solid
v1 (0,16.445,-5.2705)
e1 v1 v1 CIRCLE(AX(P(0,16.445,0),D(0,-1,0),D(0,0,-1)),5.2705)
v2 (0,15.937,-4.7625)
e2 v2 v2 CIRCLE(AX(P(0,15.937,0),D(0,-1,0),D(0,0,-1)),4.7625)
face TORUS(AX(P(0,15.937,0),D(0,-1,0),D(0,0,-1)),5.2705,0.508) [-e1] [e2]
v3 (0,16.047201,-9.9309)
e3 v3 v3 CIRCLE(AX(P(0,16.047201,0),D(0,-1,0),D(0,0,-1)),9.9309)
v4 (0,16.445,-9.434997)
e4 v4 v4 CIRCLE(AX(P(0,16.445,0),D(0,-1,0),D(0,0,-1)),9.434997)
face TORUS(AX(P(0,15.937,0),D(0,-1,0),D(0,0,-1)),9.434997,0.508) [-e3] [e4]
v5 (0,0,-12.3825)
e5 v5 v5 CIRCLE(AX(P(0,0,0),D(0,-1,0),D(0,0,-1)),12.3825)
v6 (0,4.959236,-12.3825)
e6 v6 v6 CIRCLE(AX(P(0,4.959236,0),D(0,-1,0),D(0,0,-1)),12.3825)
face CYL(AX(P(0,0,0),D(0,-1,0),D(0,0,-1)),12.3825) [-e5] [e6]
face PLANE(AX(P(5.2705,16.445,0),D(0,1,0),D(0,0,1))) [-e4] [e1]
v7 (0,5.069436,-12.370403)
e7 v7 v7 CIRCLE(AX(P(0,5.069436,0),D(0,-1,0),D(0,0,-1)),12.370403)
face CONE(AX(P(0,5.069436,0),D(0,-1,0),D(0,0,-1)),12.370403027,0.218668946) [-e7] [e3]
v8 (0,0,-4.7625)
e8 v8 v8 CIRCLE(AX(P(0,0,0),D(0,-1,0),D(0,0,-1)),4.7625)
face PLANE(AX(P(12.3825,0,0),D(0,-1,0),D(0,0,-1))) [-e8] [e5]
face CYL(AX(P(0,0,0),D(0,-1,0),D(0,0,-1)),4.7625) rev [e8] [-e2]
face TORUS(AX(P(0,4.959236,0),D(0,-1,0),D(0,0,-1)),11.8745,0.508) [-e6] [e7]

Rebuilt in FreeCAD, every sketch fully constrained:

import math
import FreeCAD as App
import Part
import Sketcher
from FreeCAD import Vector
Q = App.Units.Quantity

doc = App.newDocument("Part")
body = doc.addObject("PartDesign::Body", "Body")

# Sketch on XY plane
sketch1 = body.newObject("Sketcher::SketchObject", "Sketch")
sketch1.AttachmentSupport = (doc.getObject("XY_Plane"), [""])
sketch1.MapMode = "FlatFace"
sketch1.addGeometry(Part.LineSegment(Vector(4.7625, 15.937, 0), Vector(4.7625, 0, 0)), False)
sketch1.addGeometry(Part.LineSegment(Vector(4.7625, 0, 0), Vector(12.3825, 0, 0)), False)
sketch1.addGeometry(Part.LineSegment(Vector(12.3825, 0, 0), Vector(12.3825, 4.959236, 0)), False)
sketch1.addGeometry(Part.ArcOfCircle(Part.Circle(Vector(11.8745, 4.959236, 0), Vector(0, 0, 1), 0.508), math.radians(-0.000001), math.radians(12.528808)), False)
sketch1.addGeometry(Part.LineSegment(Vector(12.370403, 5.069436, 0), Vector(9.9309, 16.047201, 0)), False)
sketch1.addGeometry(Part.ArcOfCircle(Part.Circle(Vector(9.434997, 15.937, 0), Vector(0, 0, 1), 0.508), math.radians(12.528808), math.radians(90)), False)
sketch1.addGeometry(Part.LineSegment(Vector(9.434997, 16.445, 0), Vector(5.2705, 16.445, 0)), False)
sketch1.addGeometry(Part.ArcOfCircle(Part.Circle(Vector(5.2705, 15.937, 0), Vector(0, 0, 1), 0.508), math.radians(90), math.radians(180)), False)
sketch1.addConstraint(Sketcher.Constraint("Coincident", 0, 2, 1, 1))
sketch1.addConstraint(Sketcher.Constraint("Coincident", 1, 2, 2, 1))
sketch1.addConstraint(Sketcher.Constraint("Coincident", 2, 2, 3, 1))
sketch1.addConstraint(Sketcher.Constraint("Coincident", 3, 2, 4, 1))
sketch1.addConstraint(Sketcher.Constraint("Coincident", 4, 2, 5, 1))
sketch1.addConstraint(Sketcher.Constraint("Coincident", 5, 2, 6, 1))
sketch1.addConstraint(Sketcher.Constraint("Coincident", 6, 2, 7, 1))
sketch1.addConstraint(Sketcher.Constraint("Coincident", 7, 2, 0, 1))
sketch1.addConstraint(Sketcher.Constraint("Vertical", 0))
sketch1.addConstraint(Sketcher.Constraint("Horizontal", 1))
sketch1.addConstraint(Sketcher.Constraint("Vertical", 2))
sketch1.addConstraint(Sketcher.Constraint("Horizontal", 6))
sketch1.addConstraint(Sketcher.Constraint("PointOnObject", 0, 2, -1))
sketch1.addConstraint(Sketcher.Constraint("Radius", 3, Q("0.02 in")))
sketch1.addConstraint(Sketcher.Constraint("Radius", 5, Q("0.02 in")))
sketch1.addConstraint(Sketcher.Constraint("Radius", 7, Q("0.02 in")))
sketch1.addConstraint(Sketcher.Constraint("DistanceX", 1, 1, 1, 2, Q("0.3 in")))
sketch1.addConstraint(Sketcher.Constraint("DistanceX", 6, 2, 3, 3, Q("0.26 in")))
sketch1.addConstraint(Sketcher.Constraint("DistanceY", 7, 2, 6, 2, Q("0.02 in")))
sketch1.addConstraint(Sketcher.Constraint("DistanceX", -1, 1, 0, 2, Q("0.1875 in")))
sketch1.addConstraint(Sketcher.Constraint("DistanceY", 0, 2, 0, 1, Q("15.937 mm")))
sketch1.addConstraint(Sketcher.Constraint("DistanceX", -1, 1, 4, 2, Q("9.9309 mm")))
sketch1.addConstraint(Sketcher.Constraint("DistanceY", -1, 1, 4, 2, Q("16.047201 mm")))
sketch1.addConstraint(Sketcher.Constraint("DistanceY", 2, 2, 3, 2, Q("0.110201 mm")))
sketch1.addConstraint(Sketcher.Constraint("DistanceY", 3, 3, 3, 2, Q("0.110201 mm")))
sketch1.addConstraint(Sketcher.Constraint("DistanceX", 6, 2, 6, 1, Q("4.164497 mm")))
sketch1.addConstraint(Sketcher.Constraint("DistanceY", 2, 1, 2, 2, Q("4.959236 mm")))
revolution = body.newObject("PartDesign::Revolution", "Revolution")
revolution.Profile = sketch1
revolution.ReferenceAxis = (sketch1, ["V_Axis"])
revolution.Angle = 360

doc.recompute()
